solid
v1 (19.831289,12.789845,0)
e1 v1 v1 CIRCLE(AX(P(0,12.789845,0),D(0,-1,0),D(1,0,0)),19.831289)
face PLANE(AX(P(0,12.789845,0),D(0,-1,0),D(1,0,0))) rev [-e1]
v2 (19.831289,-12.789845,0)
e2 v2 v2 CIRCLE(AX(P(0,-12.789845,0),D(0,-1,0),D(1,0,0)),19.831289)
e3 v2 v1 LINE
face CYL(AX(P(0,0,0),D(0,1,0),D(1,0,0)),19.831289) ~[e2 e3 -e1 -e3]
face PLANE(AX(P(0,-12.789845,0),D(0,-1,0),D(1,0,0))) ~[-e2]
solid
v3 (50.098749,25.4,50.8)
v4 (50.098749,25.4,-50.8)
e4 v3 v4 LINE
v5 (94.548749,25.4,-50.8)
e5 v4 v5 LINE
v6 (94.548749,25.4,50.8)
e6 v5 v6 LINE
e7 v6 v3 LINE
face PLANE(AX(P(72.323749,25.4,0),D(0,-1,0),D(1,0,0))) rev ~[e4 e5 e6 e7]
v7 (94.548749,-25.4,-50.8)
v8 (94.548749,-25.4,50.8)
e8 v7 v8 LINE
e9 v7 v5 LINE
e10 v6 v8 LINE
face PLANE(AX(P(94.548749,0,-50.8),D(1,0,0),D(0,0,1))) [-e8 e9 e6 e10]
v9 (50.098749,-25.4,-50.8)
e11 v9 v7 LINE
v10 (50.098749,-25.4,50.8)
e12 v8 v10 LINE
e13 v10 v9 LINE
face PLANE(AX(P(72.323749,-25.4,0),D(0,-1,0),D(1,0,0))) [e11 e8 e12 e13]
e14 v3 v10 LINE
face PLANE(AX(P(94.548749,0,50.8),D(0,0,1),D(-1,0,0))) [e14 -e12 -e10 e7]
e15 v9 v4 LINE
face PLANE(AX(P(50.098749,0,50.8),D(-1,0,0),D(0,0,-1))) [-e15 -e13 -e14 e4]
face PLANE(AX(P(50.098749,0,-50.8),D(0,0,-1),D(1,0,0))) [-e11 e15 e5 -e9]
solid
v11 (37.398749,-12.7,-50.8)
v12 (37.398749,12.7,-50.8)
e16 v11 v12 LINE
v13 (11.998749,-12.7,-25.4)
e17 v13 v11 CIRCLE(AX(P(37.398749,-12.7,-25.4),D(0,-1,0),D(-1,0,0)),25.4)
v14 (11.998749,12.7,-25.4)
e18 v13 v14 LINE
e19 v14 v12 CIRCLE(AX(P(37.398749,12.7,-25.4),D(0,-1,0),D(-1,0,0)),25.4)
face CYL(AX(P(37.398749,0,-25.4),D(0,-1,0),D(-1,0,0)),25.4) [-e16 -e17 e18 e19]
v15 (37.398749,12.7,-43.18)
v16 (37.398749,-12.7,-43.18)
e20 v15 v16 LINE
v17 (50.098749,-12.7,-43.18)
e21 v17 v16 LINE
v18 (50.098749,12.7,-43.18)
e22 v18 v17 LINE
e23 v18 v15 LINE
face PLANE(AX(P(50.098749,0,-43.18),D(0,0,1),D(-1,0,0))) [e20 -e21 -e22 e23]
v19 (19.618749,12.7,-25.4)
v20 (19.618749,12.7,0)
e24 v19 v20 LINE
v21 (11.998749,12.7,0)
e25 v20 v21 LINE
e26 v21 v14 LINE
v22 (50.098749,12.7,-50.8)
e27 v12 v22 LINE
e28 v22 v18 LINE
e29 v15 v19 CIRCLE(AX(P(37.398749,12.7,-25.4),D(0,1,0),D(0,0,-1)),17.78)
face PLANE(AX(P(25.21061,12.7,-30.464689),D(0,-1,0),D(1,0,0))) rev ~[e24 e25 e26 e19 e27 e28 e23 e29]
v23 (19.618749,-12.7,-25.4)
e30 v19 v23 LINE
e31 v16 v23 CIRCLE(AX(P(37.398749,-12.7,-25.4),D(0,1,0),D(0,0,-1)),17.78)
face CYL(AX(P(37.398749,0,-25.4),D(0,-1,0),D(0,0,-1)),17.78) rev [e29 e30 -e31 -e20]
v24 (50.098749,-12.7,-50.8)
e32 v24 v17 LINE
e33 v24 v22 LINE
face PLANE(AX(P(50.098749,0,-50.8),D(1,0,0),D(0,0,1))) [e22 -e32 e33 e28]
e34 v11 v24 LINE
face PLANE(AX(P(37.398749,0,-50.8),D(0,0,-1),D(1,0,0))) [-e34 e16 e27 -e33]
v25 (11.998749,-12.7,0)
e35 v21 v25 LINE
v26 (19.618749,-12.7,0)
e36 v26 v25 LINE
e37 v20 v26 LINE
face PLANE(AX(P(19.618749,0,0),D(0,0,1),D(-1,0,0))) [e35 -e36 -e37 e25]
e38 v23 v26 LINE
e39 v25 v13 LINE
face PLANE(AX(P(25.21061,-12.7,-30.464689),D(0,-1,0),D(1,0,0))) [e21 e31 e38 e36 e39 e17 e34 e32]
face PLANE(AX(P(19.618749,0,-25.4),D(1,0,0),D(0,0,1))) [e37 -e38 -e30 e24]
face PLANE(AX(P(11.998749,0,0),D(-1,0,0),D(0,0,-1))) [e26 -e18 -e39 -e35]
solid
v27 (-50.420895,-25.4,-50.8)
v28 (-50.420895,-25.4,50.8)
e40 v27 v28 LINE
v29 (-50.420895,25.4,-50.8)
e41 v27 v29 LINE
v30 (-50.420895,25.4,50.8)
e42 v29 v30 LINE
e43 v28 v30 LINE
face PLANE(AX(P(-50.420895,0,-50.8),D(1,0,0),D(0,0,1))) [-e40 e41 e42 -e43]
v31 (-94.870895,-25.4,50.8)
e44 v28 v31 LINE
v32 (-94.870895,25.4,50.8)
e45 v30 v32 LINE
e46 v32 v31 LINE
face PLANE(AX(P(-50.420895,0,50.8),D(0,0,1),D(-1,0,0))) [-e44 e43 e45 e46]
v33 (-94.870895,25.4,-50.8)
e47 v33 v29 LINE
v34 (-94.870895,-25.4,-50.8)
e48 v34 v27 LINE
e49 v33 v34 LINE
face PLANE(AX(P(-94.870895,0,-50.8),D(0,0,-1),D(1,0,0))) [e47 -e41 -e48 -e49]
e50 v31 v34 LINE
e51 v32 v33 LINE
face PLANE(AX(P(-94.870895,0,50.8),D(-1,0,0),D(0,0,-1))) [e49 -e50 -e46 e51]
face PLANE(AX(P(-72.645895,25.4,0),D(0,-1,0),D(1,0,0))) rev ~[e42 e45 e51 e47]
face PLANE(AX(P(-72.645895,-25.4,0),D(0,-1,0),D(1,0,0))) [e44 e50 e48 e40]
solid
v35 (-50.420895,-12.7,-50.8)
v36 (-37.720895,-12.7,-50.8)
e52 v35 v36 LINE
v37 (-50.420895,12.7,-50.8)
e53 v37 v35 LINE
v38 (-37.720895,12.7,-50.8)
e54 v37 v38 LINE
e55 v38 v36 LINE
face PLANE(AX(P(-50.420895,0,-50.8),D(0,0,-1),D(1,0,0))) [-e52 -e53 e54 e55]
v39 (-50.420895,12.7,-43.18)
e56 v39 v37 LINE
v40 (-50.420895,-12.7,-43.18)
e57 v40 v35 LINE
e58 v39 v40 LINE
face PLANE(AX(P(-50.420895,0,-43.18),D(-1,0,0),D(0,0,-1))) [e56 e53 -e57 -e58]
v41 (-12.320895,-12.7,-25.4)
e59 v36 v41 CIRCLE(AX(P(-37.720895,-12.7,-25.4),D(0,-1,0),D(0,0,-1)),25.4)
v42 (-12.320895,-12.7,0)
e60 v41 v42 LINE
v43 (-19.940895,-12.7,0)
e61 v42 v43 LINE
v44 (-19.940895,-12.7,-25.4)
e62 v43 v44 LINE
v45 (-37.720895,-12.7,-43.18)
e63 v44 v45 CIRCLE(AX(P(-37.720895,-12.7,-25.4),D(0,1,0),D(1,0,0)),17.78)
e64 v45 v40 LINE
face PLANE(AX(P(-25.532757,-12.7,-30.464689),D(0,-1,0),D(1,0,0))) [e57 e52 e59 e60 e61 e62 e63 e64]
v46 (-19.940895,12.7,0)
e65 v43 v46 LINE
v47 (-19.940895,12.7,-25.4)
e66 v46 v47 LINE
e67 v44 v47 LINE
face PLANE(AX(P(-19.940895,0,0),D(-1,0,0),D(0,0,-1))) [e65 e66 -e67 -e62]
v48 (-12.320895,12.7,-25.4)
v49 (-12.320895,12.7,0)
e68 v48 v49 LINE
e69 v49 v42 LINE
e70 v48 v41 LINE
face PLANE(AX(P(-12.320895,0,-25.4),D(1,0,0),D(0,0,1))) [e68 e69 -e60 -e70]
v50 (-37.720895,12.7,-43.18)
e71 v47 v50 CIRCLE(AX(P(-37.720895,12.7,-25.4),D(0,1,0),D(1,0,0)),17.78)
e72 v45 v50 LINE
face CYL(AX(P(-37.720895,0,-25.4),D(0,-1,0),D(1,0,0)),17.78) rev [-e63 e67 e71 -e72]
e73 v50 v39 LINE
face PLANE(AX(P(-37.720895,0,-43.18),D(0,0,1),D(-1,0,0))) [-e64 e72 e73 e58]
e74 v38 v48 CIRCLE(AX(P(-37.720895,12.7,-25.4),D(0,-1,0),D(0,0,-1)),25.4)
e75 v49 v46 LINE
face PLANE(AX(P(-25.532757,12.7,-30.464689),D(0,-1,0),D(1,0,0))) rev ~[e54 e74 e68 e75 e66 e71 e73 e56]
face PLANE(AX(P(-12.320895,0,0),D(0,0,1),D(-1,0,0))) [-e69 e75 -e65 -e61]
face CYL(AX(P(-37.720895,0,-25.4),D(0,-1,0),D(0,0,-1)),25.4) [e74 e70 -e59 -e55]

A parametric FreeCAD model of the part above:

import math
import FreeCAD as App
import Part
import Sketcher
from FreeCAD import Vector
Q = App.Units.Quantity

doc = App.newDocument("Part")
body = doc.addObject("PartDesign::Body", "Body")

# Sketch on XZ plane
sketch1 = doc.addObject("Sketcher::SketchObject", "Sketch")
body.addObject(sketch1)
sketch1.AttachmentSupport = (doc.XZ_Plane, [""])
sketch1.MapMode = "FlatFace"
sketch1.addGeometry([
    Part.LineSegment(Vector(-50, 51, 0), Vector(-95, 51, 0)),
    Part.LineSegment(Vector(-95, 51, 0), Vector(-95, -51, 0)),
    Part.LineSegment(Vector(-95, -51, 0), Vector(-50, -51, 0)),
    Part.LineSegment(Vector(-50, -51, 0), Vector(-50, 51, 0)),
], False)
sketch1.addConstraint([
    Sketcher.Constraint("Coincident", 0, 2, 1, 1),
    Sketcher.Constraint("Coincident", 1, 2, 2, 1),
    Sketcher.Constraint("Coincident", 2, 2, 3, 1),
    Sketcher.Constraint("Coincident", 3, 2, 0, 1),
    Sketcher.Constraint("Horizontal", 0),
    Sketcher.Constraint("Vertical", 1),
    Sketcher.Constraint("Horizontal", 2),
    Sketcher.Constraint("Vertical", 3),
    Sketcher.Constraint("DistanceY", 1, 2, 1, 1, Q("4 in")),
    Sketcher.Constraint("DistanceY", -1, 1, 0, 2, Q("2 in")),
    Sketcher.Constraint("DistanceX", 0, 2, 0, 1, Q("1.75 in")),
    Sketcher.Constraint("DistanceX", 0, 2, -1, 1, Q("94.870895 mm")),
])
pad1 = doc.addObject("PartDesign::Pad", "Pad")
body.addObject(pad1)
pad1.Profile = sketch1
pad1.Length = Q("2 in")
pad1.Midplane = True
body2 = doc.addObject("PartDesign::Body", "Body001")

# Sketch on XZ plane
sketch2 = doc.addObject("Sketcher::SketchObject", "Sketch001")
body2.addObject(sketch2)
sketch2.AttachmentSupport = (doc.getObject("XZ_Plane001"), [""])
sketch2.MapMode = "FlatFace"
sketch2.addGeometry([
    Part.LineSegment(Vector(95, -51, 0), Vector(95, 51, 0)),
    Part.LineSegment(Vector(95, 51, 0), Vector(50, 51, 0)),
    Part.LineSegment(Vector(50, 51, 0), Vector(50, -51, 0)),
    Part.LineSegment(Vector(50, -51, 0), Vector(95, -51, 0)),
], False)
sketch2.addConstraint([
    Sketcher.Constraint("Coincident", 0, 2, 1, 1),
    Sketcher.Constraint("Coincident", 1, 2, 2, 1),
    Sketcher.Constraint("Coincident", 2, 2, 3, 1),
    Sketcher.Constraint("Coincident", 3, 2, 0, 1),
    Sketcher.Constraint("Vertical", 0),
    Sketcher.Constraint("Horizontal", 1),
    Sketcher.Constraint("Vertical", 2),
    Sketcher.Constraint("Horizontal", 3),
    Sketcher.Constraint("DistanceY", 0, 1, 0, 2, Q("4 in")),
    Sketcher.Constraint("DistanceY", -1, 1, 0, 2, Q("2 in")),
    Sketcher.Constraint("DistanceX", 1, 2, 1, 1, Q("1.75 in")),
    Sketcher.Constraint("DistanceX", -1, 1, 0, 2, Q("94.548749 mm")),
])
pad2 = doc.addObject("PartDesign::Pad", "Pad001")
body2.addObject(pad2)
pad2.Profile = sketch2
pad2.Length = Q("2 in")
pad2.Midplane = True
body3 = doc.addObject("PartDesign::Body", "Body002")

# Sketch on XZ plane
sketch3 = doc.addObject("Sketcher::SketchObject", "Sketch002")
body3.addObject(sketch3)
sketch3.AttachmentSupport = (doc.getObject("XZ_Plane002"), [""])
sketch3.MapMode = "FlatFace"
sketch3.addGeometry([
    Part.LineSegment(Vector(-38, -43, 0), Vector(-50, -43, 0)),  # 0
    Part.LineSegment(Vector(-50, -43, 0), Vector(-50, -51, 0)),  # 1
    Part.LineSegment(Vector(-50, -51, 0), Vector(-38, -51, 0)),  # 2
    Part.ArcOfCircle(Part.Circle(Vector(-38, -25, 0), Vector(0, 0, 1), 25), math.radians(-90), math.radians(0)),  # 3
    Part.LineSegment(Vector(-12, -25, 0), Vector(-12, 0, 0)),  # 4
    Part.LineSegment(Vector(-12, 0, 0), Vector(-20, 0, 0)),  # 5
    Part.LineSegment(Vector(-20, 0, 0), Vector(-20, -25, 0)),  # 6
    Part.ArcOfCircle(Part.Circle(Vector(-38, -25, 0), Vector(0, 0, 1), 18), math.radians(-90), math.radians(0)),  # 7
], False)
sketch3.addConstraint([
    Sketcher.Constraint("Coincident", 0, 2, 1, 1),
    Sketcher.Constraint("Coincident", 1, 2, 2, 1),
    Sketcher.Constraint("Tangent", 2, 2, 3, 1),
    Sketcher.Constraint("Tangent", 3, 2, 4, 1),
    Sketcher.Constraint("Coincident", 4, 2, 5, 1),
    Sketcher.Constraint("Coincident", 5, 2, 6, 1),
    Sketcher.Constraint("Tangent", 6, 2, 7, 2),
    Sketcher.Constraint("Tangent", 7, 1, 0, 1),
    Sketcher.Constraint("Horizontal", 0),
    Sketcher.Constraint("Vertical", 1),
    Sketcher.Constraint("Horizontal", 2),
    Sketcher.Constraint("Vertical", 4),
    Sketcher.Constraint("Horizontal", 5),
    Sketcher.Constraint("Vertical", 6),
    Sketcher.Constraint("Coincident", 7, 3, 3, 3),
    Sketcher.Constraint("PointOnObject", 4, 2, -1),
    Sketcher.Constraint("Radius", 3, Q("1 in")),
    Sketcher.Constraint("Radius", 7, Q("0.7 in")),
    Sketcher.Constraint("DistanceY", 4, 1, 4, 2, Q("1 in")),
    Sketcher.Constraint("DistanceX", 0, 2, 0, 1, Q("0.5 in")),
    Sketcher.Constraint("DistanceX", 3, 3, -1, 1, Q("37.720895 mm")),
])
pad3 = doc.addObject("PartDesign::Pad", "Pad002")
body3.addObject(pad3)
pad3.Profile = sketch3
pad3.Length = Q("1 in")
pad3.Midplane = True
body4 = doc.addObject("PartDesign::Body", "Body003")

# Sketch on XZ plane
sketch4 = doc.addObject("Sketcher::SketchObject", "Sketch003")
body4.addObject(sketch4)
sketch4.AttachmentSupport = (doc.getObject("XZ_Plane003"), [""])
sketch4.MapMode = "FlatFace"
sketch4.addGeometry([
    Part.LineSegment(Vector(50, -51, 0), Vector(50, -43, 0)),  # 0
    Part.LineSegment(Vector(50, -43, 0), Vector(37, -43, 0)),  # 1
    Part.ArcOfCircle(Part.Circle(Vector(37, -25, 0), Vector(0, 0, 1), 18), math.radians(180), math.radians(270)),  # 2
    Part.LineSegment(Vector(20, -25, 0), Vector(20, 0, 0)),  # 3
    Part.LineSegment(Vector(20, 0, 0), Vector(12, 0, 0)),  # 4
    Part.LineSegment(Vector(12, 0, 0), Vector(12, -25, 0)),  # 5
    Part.ArcOfCircle(Part.Circle(Vector(37, -25, 0), Vector(0, 0, 1), 25), math.radians(180), math.radians(270)),  # 6
    Part.LineSegment(Vector(37, -51, 0), Vector(50, -51, 0)),  # 7
], False)
sketch4.addConstraint([
    Sketcher.Constraint("Coincident", 0, 2, 1, 1),
    Sketcher.Constraint("Tangent", 1, 2, 2, 2),
    Sketcher.Constraint("Tangent", 2, 1, 3, 1),
    Sketcher.Constraint("Coincident", 3, 2, 4, 1),
    Sketcher.Constraint("Coincident", 4, 2, 5, 1),
    Sketcher.Constraint("Tangent", 5, 2, 6, 1),
    Sketcher.Constraint("Tangent", 6, 2, 7, 1),
    Sketcher.Constraint("Coincident", 7, 2, 0, 1),
    Sketcher.Constraint("Vertical", 0),
    Sketcher.Constraint("Horizontal", 1),
    Sketcher.Constraint("Vertical", 3),
    Sketcher.Constraint("Horizontal", 4),
    Sketcher.Constraint("Vertical", 5),
    Sketcher.Constraint("Horizontal", 7),
    Sketcher.Constraint("Coincident", 6, 3, 2, 3),
    Sketcher.Constraint("PointOnObject", 3, 2, -1),
    Sketcher.Constraint("Radius", 6, Q("1 in")),
    Sketcher.Constraint("Radius", 2, Q("0.7 in")),
    Sketcher.Constraint("DistanceY", 3, 1, 3, 2, Q("1 in")),
    Sketcher.Constraint("DistanceX", 1, 2, 1, 1, Q("0.5 in")),
    Sketcher.Constraint("DistanceX", -1, 1, 2, 3, Q("37.398749 mm")),
])
pad4 = doc.addObject("PartDesign::Pad", "Pad003")
body4.addObject(pad4)
pad4.Profile = sketch4
pad4.Length = Q("1 in")
pad4.Midplane = True
body5 = doc.addObject("PartDesign::Body", "Body004")

# Sketch on XY plane
sketch5 = doc.addObject("Sketcher::SketchObject", "Sketch004")
body5.addObject(sketch5)
sketch5.AttachmentSupport = (doc.getObject("XY_Plane004"), [""])
sketch5.MapMode = "FlatFace"
sketch5.addGeometry([
    Part.LineSegment(Vector(0, 13, 0), Vector(0, -13, 0)),
    Part.LineSegment(Vector(0, -13, 0), Vector(20, -13, 0)),
    Part.LineSegment(Vector(20, -13, 0), Vector(20, 13, 0)),
    Part.LineSegment(Vector(20, 13, 0), Vector(0, 13, 0)),
], False)
sketch5.addConstraint([
    Sketcher.Constraint("Coincident", 0, 2, 1, 1),
    Sketcher.Constraint("Coincident", 1, 2, 2, 1),
    Sketcher.Constraint("Coincident", 2, 2, 3, 1),
    Sketcher.Constraint("Coincident", 3, 2, 0, 1),
    Sketcher.Constraint("Vertical", 0),
    Sketcher.Constraint("Horizontal", 1),
    Sketcher.Constraint("Vertical", 2),
    Sketcher.Constraint("Horizontal", 3),
    Sketcher.Constraint("Symmetric", 0, 2, 3, 2, -1, 1),
    Sketcher.Constraint("DistanceX", 1, 1, 1, 2, Q("19.831289 mm")),
    Sketcher.Constraint("DistanceY", 0, 2, 0, 1, Q("25.579689 mm")),
])
revolution = doc.addObject("PartDesign::Revolution", "Revolution")
body5.addObject(revolution)
revolution.Profile = sketch5
revolution.ReferenceAxis = (sketch5, ["V_Axis"])
revolution.Angle = 360

doc.recompute()
